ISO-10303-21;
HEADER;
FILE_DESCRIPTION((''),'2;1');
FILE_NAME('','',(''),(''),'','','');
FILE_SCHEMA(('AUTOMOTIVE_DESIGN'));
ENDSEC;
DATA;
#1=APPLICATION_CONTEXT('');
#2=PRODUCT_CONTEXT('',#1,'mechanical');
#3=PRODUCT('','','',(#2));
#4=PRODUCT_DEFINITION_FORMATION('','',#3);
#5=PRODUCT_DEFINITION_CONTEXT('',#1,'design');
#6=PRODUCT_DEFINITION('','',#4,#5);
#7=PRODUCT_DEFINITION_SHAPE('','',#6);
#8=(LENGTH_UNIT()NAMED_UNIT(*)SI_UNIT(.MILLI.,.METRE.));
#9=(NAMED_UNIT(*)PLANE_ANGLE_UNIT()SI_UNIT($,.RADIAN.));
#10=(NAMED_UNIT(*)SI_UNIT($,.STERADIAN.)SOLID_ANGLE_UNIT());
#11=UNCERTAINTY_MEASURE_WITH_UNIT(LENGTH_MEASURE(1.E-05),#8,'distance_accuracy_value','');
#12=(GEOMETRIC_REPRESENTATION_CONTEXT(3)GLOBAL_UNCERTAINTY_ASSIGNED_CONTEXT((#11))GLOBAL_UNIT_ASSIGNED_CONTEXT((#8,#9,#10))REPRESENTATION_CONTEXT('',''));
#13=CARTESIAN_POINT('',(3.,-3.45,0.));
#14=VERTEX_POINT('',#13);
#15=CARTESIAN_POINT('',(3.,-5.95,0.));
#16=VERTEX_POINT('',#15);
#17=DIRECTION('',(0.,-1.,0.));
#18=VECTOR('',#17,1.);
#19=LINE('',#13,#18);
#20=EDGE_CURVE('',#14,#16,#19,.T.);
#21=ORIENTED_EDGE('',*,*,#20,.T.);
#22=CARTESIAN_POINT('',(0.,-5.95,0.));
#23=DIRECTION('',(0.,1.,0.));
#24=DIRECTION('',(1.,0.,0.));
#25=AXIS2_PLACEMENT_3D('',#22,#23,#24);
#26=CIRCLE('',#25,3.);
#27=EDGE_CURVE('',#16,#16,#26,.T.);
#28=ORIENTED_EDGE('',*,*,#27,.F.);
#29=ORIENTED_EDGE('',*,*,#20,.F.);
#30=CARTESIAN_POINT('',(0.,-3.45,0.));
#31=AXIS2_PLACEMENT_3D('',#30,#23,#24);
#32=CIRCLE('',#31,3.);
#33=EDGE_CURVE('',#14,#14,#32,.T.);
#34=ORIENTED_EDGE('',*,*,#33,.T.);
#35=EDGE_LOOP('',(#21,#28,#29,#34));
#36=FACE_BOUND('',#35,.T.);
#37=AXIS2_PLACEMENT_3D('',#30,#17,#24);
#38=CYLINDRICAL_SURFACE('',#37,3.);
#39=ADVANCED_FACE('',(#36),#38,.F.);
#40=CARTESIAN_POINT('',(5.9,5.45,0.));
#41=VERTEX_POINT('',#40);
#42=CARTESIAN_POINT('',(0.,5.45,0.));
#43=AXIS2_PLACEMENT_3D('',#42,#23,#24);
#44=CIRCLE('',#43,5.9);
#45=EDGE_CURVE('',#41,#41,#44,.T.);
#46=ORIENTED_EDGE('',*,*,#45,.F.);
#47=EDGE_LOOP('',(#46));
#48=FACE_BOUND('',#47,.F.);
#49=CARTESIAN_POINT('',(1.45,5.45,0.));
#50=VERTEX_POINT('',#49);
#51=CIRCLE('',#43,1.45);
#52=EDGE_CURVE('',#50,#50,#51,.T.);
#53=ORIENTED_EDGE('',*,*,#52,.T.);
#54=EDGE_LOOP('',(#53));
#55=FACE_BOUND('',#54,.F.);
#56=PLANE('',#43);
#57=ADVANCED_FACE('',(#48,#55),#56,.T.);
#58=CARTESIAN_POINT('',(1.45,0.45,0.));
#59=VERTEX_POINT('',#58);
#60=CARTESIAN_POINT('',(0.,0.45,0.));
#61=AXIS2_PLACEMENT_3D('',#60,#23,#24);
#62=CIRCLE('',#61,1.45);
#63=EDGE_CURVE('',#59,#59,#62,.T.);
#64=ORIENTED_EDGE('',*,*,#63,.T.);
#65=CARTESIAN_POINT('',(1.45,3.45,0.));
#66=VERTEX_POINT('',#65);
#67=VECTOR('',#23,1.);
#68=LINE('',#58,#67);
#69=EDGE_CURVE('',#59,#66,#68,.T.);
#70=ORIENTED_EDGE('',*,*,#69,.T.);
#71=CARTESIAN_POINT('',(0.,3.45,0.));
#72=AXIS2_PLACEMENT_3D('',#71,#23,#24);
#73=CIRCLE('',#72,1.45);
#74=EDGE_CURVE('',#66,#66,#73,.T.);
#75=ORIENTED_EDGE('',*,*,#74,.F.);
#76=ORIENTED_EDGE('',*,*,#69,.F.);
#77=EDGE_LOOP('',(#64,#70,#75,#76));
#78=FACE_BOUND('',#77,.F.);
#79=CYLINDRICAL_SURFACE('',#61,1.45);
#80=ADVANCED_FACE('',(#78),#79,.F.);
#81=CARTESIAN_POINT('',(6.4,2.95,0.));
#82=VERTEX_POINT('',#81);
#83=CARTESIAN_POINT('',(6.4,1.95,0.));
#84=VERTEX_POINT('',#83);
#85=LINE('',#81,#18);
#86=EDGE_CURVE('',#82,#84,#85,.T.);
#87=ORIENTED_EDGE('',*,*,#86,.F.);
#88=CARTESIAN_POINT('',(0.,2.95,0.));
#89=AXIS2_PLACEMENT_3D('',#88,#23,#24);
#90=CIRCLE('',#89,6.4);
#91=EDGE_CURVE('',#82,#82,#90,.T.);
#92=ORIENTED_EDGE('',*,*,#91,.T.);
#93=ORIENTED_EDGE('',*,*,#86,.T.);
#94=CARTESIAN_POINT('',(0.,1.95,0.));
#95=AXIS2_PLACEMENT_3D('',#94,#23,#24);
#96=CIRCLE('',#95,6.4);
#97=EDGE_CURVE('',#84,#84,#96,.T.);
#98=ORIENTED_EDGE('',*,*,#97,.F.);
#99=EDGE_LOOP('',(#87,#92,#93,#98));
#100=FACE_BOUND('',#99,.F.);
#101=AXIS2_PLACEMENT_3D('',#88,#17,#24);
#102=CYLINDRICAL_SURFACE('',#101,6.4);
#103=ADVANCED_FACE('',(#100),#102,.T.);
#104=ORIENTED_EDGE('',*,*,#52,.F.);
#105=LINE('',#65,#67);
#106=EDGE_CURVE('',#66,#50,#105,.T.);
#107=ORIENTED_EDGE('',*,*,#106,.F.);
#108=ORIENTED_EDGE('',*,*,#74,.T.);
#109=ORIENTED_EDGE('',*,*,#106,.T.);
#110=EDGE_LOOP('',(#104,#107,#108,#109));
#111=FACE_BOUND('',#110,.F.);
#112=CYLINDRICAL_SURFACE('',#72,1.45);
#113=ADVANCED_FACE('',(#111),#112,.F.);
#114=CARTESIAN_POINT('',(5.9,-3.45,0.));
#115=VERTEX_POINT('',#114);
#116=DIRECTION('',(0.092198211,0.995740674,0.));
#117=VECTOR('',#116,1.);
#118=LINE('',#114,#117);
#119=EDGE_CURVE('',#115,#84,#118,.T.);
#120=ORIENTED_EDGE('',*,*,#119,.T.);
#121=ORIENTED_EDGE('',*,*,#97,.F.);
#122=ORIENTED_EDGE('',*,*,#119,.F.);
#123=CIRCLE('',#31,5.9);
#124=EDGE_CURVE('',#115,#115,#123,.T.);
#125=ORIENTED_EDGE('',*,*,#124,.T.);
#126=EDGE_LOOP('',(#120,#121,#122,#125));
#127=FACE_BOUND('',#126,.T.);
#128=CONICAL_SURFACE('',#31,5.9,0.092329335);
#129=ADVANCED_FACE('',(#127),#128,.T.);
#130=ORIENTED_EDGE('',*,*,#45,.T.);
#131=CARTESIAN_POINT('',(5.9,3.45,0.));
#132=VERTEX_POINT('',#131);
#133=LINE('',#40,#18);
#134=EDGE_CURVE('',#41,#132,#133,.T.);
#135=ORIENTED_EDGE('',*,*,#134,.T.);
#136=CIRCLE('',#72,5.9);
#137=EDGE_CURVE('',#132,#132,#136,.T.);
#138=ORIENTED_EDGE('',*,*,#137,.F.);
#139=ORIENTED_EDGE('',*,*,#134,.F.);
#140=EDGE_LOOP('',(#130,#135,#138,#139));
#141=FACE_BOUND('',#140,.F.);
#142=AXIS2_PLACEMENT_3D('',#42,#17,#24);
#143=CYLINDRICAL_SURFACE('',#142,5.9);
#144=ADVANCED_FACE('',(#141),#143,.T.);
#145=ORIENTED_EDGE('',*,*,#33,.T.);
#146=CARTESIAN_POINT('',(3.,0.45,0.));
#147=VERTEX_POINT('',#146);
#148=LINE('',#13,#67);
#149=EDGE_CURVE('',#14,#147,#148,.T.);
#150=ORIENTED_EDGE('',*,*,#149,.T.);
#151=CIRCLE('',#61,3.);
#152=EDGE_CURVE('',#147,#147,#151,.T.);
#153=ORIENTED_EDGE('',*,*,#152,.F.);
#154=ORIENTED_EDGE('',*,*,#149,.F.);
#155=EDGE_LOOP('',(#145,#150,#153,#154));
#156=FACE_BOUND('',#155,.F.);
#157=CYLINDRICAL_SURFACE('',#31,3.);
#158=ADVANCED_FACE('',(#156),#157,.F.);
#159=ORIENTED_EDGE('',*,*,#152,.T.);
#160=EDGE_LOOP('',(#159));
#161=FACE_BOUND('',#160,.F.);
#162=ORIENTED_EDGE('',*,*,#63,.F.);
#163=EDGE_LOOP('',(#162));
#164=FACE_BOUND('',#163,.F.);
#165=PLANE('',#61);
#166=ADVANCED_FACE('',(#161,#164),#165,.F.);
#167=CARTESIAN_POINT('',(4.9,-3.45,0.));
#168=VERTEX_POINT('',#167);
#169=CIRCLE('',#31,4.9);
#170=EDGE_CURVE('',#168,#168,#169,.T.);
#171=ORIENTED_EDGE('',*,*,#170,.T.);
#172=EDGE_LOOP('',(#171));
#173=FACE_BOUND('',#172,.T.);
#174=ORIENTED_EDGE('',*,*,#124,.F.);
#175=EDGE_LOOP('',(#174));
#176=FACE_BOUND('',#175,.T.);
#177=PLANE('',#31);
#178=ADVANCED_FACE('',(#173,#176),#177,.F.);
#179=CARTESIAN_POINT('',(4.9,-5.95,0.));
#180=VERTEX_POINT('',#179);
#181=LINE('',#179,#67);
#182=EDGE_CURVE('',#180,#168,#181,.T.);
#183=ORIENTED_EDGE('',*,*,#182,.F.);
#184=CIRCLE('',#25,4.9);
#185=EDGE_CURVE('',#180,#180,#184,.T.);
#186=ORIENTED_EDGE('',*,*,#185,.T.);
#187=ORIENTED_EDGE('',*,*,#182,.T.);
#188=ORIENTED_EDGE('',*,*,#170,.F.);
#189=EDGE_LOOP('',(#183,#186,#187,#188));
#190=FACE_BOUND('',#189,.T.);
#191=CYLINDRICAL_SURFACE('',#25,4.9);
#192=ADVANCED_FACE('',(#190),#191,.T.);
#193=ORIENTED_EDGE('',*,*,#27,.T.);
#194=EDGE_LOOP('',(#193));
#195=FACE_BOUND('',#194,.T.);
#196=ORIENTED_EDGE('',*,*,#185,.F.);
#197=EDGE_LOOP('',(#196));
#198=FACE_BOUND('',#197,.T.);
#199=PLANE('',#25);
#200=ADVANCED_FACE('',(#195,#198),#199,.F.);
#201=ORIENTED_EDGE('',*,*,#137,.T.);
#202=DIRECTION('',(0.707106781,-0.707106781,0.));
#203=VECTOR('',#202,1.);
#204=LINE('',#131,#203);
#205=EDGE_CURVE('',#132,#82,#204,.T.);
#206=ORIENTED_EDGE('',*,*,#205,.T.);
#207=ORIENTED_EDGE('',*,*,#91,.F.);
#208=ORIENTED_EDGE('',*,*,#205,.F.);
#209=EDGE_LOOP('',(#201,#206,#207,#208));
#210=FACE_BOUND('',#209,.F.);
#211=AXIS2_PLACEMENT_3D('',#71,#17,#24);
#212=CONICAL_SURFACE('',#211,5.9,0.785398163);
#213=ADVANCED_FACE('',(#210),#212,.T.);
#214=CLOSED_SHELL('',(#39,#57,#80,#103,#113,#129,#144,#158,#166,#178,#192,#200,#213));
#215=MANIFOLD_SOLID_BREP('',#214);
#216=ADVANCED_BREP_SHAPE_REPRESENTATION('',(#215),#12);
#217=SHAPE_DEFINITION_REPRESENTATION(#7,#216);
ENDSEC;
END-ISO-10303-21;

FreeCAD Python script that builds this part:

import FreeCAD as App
import Part
import Sketcher
Q = App.Units.Quantity


def add_polygon(sketch, points):
    """Adds a closed chain of lines whose ends are joined by coincident constraints."""
    first, n = sketch.GeometryCount, len(points)
    for a, b in zip(points, points[1:] + points[:1]):
        sketch.addGeometry(Part.LineSegment(App.Vector(*a, 0), App.Vector(*b, 0)), False)
    for i in range(n):
        sketch.addConstraint(Sketcher.Constraint("Coincident", first + i, 2, first + (i + 1) % n, 1))

doc = App.newDocument("Part")
body = doc.addObject("PartDesign::Body", "Body")

# Sketch on XY plane
sketch1 = body.newObject("Sketcher::SketchObject", "Sketch")
sketch1.AttachmentSupport = (doc.getObject("XY_Plane"), [""])
sketch1.MapMode = "FlatFace"
add_polygon(sketch1, [(6.4, 1.9), (6.4, 3), (5.9, 3.5), (5.9, 5.5), (1.4, 5.5), (1.4, 0.5), (3, 0.5), (3, -6), (4.9, -6), (4.9, -3.5), (5.9, -3.5)])  # lines 0-10
sketch1.addConstraint([
    Sketcher.Constraint("Vertical", 0),
    Sketcher.Constraint("Vertical", 2),
    Sketcher.Constraint("Horizontal", 3),
    Sketcher.Constraint("Vertical", 4),
    Sketcher.Constraint("Horizontal", 5),
    Sketcher.Constraint("Vertical", 6),
    Sketcher.Constraint("Horizontal", 7),
    Sketcher.Constraint("Vertical", 8),
    Sketcher.Constraint("Horizontal", 9),
    Sketcher.Constraint("Symmetric", 1, 2, 9, 2, -1),
    Sketcher.Constraint("Equal", 9, 0),
    Sketcher.Constraint("DistanceX", 9, 1, 9, 2, 1.0),
    Sketcher.Constraint("DistanceY", 2, 1, 2, 2, 2.0),
    Sketcher.Constraint("DistanceY", 4, 2, 4, 1, 5.0),
    Sketcher.Constraint("Angle", 1, Q("135 deg")),
    Sketcher.Constraint("DistanceY", 8, 1, 8, 2, 2.5),
    Sketcher.Constraint("DistanceX", -1, 1, 5, 2, 3.0),
    Sketcher.Constraint("DistanceX", -1, 1, 1, 2, 5.9),
    Sketcher.Constraint("DistanceX", 1, 2, 0, 2, 0.5),
    Sketcher.Constraint("DistanceX", -1, 1, 3, 2, 1.45),
    Sketcher.Constraint("DistanceY", 6, 2, 6, 1, 6.4),
])
revolution = body.newObject("PartDesign::Revolution", "Revolution")
revolution.Profile = sketch1
revolution.ReferenceAxis = (sketch1, ["V_Axis"])
revolution.Angle = 360

doc.recompute()
